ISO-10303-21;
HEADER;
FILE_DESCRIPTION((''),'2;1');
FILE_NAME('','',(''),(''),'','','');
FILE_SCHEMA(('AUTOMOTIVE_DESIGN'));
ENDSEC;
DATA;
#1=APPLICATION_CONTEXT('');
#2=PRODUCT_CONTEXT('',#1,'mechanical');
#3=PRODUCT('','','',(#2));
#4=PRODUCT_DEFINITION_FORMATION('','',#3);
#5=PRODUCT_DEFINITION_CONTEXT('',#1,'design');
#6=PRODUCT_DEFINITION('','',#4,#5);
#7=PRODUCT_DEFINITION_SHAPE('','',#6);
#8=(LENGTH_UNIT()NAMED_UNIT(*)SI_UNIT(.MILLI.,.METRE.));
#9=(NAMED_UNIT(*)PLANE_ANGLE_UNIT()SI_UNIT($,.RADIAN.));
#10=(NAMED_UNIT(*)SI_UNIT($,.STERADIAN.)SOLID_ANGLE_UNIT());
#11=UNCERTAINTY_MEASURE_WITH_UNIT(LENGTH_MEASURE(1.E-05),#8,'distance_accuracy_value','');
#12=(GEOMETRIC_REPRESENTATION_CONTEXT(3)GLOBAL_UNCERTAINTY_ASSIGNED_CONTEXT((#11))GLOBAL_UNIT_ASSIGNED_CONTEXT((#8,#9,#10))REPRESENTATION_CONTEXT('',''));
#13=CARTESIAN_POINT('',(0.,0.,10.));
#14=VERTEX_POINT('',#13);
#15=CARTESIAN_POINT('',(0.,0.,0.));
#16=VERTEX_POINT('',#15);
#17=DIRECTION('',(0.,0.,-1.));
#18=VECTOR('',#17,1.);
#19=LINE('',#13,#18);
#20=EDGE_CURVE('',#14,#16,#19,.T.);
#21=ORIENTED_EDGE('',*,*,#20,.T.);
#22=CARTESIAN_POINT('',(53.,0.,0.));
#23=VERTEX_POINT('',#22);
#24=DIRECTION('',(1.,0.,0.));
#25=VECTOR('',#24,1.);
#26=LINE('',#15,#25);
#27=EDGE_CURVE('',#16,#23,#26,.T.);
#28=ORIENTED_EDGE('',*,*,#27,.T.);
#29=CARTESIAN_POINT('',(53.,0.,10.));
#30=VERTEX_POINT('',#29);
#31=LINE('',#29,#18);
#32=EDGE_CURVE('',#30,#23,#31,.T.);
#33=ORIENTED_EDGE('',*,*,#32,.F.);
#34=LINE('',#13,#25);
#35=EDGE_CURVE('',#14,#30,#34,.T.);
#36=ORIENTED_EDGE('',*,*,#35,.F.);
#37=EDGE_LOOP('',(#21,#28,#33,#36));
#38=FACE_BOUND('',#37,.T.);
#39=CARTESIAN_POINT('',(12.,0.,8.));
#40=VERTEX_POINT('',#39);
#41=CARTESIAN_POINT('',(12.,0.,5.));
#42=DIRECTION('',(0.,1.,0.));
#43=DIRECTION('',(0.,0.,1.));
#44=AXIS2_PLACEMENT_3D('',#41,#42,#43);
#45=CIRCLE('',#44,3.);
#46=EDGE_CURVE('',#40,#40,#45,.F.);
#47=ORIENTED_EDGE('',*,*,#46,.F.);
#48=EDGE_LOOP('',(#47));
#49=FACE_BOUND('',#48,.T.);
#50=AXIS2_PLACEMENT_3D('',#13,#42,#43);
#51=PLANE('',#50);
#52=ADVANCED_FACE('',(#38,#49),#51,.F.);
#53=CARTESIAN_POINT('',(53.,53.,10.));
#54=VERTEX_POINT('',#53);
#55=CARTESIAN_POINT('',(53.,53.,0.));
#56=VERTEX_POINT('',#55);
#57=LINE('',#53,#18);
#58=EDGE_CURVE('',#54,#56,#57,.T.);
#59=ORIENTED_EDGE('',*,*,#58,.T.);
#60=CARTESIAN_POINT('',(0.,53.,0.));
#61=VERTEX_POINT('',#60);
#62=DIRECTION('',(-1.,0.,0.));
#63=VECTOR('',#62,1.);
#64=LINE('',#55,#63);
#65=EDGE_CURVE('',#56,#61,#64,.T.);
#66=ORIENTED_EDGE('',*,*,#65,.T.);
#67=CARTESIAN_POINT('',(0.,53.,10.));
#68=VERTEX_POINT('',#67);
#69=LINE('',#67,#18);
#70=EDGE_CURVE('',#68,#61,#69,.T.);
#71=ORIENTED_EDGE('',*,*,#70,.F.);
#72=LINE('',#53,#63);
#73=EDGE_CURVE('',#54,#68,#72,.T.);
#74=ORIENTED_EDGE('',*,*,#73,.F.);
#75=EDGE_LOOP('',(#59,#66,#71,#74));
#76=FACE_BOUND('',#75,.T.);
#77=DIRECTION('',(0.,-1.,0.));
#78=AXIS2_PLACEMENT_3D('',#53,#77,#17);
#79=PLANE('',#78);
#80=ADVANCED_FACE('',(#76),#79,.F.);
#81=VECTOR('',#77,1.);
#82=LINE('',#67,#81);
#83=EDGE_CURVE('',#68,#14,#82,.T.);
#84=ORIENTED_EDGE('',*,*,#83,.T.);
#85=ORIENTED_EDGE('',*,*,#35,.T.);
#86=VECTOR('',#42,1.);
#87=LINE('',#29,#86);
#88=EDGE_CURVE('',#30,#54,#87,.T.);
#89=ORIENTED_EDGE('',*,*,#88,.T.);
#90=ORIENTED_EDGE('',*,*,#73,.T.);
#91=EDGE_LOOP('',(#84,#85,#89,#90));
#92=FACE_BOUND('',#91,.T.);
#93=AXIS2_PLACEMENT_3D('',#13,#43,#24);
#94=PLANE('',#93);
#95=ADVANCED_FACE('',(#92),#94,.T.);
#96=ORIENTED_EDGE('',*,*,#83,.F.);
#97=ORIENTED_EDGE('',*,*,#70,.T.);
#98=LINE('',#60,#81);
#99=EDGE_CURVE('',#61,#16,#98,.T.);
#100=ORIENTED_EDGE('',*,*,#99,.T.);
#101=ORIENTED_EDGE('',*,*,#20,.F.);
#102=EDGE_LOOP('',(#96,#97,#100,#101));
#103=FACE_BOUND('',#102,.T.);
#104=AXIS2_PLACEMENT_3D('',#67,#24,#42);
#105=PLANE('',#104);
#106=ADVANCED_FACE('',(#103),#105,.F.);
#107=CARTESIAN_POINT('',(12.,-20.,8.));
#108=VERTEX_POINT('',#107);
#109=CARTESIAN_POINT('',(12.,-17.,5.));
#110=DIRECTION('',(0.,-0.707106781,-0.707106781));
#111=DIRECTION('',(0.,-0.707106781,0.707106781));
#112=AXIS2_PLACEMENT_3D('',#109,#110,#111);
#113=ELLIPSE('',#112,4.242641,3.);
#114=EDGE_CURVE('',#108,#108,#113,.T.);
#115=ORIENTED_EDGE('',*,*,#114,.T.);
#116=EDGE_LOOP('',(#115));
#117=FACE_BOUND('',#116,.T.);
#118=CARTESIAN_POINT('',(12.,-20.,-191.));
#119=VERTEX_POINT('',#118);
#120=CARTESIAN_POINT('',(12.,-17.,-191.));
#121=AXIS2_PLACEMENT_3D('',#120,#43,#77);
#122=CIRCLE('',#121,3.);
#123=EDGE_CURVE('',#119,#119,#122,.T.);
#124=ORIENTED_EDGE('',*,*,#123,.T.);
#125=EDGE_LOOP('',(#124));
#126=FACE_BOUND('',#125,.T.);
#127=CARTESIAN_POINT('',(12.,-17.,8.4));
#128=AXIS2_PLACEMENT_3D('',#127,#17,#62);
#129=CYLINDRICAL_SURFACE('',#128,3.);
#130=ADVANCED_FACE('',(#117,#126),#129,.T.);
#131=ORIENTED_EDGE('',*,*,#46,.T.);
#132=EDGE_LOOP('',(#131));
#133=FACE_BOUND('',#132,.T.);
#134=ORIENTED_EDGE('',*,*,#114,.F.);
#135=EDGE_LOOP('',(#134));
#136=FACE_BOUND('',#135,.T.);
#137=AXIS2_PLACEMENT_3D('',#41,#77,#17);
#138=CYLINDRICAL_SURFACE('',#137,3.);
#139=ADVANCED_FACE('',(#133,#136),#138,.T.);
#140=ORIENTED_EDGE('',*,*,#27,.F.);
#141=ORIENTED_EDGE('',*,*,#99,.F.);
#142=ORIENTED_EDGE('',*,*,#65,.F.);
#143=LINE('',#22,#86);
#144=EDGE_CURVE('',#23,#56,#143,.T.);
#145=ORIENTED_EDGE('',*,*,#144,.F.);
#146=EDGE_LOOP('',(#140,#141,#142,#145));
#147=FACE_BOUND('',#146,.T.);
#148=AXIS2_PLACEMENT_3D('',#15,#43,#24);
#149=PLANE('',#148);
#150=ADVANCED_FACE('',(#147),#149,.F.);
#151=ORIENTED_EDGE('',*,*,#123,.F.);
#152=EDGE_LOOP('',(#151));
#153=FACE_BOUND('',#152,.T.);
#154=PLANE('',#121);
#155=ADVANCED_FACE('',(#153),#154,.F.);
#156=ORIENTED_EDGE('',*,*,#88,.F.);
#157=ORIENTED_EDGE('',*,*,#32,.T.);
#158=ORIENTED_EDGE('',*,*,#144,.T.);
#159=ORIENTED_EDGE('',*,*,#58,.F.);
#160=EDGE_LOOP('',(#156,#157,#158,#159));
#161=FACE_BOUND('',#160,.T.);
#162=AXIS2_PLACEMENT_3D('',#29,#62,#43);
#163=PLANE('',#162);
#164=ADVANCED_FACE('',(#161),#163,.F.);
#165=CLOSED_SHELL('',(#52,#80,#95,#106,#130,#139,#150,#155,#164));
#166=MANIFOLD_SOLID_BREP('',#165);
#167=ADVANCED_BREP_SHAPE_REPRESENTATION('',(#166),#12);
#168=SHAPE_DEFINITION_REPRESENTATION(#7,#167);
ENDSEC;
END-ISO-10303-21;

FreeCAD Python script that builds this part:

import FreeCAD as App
import Part
import Sketcher
from FreeCAD import Vector


def add_polygon(sketch, points):
    """Adds a closed chain of lines whose ends are joined by coincident constraints."""
    first, n = sketch.GeometryCount, len(points)
    for a, b in zip(points, points[1:] + points[:1]):
        sketch.addGeometry(Part.LineSegment(App.Vector(*a, 0), App.Vector(*b, 0)), False)
    for i in range(n):
        sketch.addConstraint(Sketcher.Constraint("Coincident", first + i, 2, first + (i + 1) % n, 1))

doc = App.newDocument("Part")
body = doc.addObject("PartDesign::Body", "Body")

# Sketch on XY plane
sketch1 = body.newObject("Sketcher::SketchObject", "Sketch")
sketch1.AttachmentSupport = (doc.getObject("XY_Plane"), [""])
sketch1.MapMode = "FlatFace"
add_polygon(sketch1, [(0, 53), (0, 0), (53, 0), (53, 53)])  # lines 0-3
sketch1.addConstraint([
    Sketcher.Constraint("Vertical", 0),
    Sketcher.Constraint("Horizontal", 1),
    Sketcher.Constraint("Vertical", 2),
    Sketcher.Constraint("Horizontal", 3),
    Sketcher.Constraint("Coincident", 0, 2, -1, 1),
    Sketcher.Constraint("Equal", 3, 0),
    Sketcher.Constraint("DistanceX", 1, 1, 1, 2, 53.0),
])
pad1 = body.newObject("PartDesign::Pad", "Pad")
pad1.Profile = sketch1
pad1.Length = 10

# Sketch on XZ plane
sketch2 = body.newObject("Sketcher::SketchObject", "Sketch001")
sketch2.AttachmentSupport = (doc.getObject("XZ_Plane"), [""])
sketch2.MapMode = "FlatFace"
sketch2.addGeometry(Part.Circle(Vector(12, 5, 0), Vector(0, 0, 1), 3), False)
sketch2.addConstraint([
    Sketcher.Constraint("Diameter", 0, 6.0),
    Sketcher.Constraint("DistanceX", -1, 1, 0, 3, 12.0),
    Sketcher.Constraint("DistanceY", -1, 1, 0, 3, 5.0),
])

# Sketch on YZ plane
sketch3 = body.newObject("Sketcher::SketchObject", "Sketch002")
sketch3.AttachmentSupport = (doc.getObject("YZ_Plane"), [""])
sketch3.MapMode = "FlatFace"
sketch3.addGeometry([
    Part.LineSegment(Vector(0, 5, 0), Vector(-17, 5, 0)),
    Part.LineSegment(Vector(-17, 5, 0), Vector(-17, -191, 0)),
], False)
sketch3.addConstraint([
    Sketcher.Constraint("Coincident", 0, 2, 1, 1),
    Sketcher.Constraint("Horizontal", 0),
    Sketcher.Constraint("Vertical", 1),
    Sketcher.Constraint("PointOnObject", 0, 1, -2),
    Sketcher.Constraint("DistanceX", 0, 2, 0, 1, 17.0),
    Sketcher.Constraint("DistanceY", 1, 2, 1, 1, 196.0),
    Sketcher.Constraint("DistanceY", -1, 1, 0, 1, 5.0),
])
doc.recompute()

additivepipe = body.newObject("PartDesign::AdditivePipe", "AdditivePipe")
additivepipe.Profile = sketch2
additivepipe.Spine = (sketch3, ["Edge1", "Edge2"])
additivepipe.Transition = "Right corner"

doc.recompute()
